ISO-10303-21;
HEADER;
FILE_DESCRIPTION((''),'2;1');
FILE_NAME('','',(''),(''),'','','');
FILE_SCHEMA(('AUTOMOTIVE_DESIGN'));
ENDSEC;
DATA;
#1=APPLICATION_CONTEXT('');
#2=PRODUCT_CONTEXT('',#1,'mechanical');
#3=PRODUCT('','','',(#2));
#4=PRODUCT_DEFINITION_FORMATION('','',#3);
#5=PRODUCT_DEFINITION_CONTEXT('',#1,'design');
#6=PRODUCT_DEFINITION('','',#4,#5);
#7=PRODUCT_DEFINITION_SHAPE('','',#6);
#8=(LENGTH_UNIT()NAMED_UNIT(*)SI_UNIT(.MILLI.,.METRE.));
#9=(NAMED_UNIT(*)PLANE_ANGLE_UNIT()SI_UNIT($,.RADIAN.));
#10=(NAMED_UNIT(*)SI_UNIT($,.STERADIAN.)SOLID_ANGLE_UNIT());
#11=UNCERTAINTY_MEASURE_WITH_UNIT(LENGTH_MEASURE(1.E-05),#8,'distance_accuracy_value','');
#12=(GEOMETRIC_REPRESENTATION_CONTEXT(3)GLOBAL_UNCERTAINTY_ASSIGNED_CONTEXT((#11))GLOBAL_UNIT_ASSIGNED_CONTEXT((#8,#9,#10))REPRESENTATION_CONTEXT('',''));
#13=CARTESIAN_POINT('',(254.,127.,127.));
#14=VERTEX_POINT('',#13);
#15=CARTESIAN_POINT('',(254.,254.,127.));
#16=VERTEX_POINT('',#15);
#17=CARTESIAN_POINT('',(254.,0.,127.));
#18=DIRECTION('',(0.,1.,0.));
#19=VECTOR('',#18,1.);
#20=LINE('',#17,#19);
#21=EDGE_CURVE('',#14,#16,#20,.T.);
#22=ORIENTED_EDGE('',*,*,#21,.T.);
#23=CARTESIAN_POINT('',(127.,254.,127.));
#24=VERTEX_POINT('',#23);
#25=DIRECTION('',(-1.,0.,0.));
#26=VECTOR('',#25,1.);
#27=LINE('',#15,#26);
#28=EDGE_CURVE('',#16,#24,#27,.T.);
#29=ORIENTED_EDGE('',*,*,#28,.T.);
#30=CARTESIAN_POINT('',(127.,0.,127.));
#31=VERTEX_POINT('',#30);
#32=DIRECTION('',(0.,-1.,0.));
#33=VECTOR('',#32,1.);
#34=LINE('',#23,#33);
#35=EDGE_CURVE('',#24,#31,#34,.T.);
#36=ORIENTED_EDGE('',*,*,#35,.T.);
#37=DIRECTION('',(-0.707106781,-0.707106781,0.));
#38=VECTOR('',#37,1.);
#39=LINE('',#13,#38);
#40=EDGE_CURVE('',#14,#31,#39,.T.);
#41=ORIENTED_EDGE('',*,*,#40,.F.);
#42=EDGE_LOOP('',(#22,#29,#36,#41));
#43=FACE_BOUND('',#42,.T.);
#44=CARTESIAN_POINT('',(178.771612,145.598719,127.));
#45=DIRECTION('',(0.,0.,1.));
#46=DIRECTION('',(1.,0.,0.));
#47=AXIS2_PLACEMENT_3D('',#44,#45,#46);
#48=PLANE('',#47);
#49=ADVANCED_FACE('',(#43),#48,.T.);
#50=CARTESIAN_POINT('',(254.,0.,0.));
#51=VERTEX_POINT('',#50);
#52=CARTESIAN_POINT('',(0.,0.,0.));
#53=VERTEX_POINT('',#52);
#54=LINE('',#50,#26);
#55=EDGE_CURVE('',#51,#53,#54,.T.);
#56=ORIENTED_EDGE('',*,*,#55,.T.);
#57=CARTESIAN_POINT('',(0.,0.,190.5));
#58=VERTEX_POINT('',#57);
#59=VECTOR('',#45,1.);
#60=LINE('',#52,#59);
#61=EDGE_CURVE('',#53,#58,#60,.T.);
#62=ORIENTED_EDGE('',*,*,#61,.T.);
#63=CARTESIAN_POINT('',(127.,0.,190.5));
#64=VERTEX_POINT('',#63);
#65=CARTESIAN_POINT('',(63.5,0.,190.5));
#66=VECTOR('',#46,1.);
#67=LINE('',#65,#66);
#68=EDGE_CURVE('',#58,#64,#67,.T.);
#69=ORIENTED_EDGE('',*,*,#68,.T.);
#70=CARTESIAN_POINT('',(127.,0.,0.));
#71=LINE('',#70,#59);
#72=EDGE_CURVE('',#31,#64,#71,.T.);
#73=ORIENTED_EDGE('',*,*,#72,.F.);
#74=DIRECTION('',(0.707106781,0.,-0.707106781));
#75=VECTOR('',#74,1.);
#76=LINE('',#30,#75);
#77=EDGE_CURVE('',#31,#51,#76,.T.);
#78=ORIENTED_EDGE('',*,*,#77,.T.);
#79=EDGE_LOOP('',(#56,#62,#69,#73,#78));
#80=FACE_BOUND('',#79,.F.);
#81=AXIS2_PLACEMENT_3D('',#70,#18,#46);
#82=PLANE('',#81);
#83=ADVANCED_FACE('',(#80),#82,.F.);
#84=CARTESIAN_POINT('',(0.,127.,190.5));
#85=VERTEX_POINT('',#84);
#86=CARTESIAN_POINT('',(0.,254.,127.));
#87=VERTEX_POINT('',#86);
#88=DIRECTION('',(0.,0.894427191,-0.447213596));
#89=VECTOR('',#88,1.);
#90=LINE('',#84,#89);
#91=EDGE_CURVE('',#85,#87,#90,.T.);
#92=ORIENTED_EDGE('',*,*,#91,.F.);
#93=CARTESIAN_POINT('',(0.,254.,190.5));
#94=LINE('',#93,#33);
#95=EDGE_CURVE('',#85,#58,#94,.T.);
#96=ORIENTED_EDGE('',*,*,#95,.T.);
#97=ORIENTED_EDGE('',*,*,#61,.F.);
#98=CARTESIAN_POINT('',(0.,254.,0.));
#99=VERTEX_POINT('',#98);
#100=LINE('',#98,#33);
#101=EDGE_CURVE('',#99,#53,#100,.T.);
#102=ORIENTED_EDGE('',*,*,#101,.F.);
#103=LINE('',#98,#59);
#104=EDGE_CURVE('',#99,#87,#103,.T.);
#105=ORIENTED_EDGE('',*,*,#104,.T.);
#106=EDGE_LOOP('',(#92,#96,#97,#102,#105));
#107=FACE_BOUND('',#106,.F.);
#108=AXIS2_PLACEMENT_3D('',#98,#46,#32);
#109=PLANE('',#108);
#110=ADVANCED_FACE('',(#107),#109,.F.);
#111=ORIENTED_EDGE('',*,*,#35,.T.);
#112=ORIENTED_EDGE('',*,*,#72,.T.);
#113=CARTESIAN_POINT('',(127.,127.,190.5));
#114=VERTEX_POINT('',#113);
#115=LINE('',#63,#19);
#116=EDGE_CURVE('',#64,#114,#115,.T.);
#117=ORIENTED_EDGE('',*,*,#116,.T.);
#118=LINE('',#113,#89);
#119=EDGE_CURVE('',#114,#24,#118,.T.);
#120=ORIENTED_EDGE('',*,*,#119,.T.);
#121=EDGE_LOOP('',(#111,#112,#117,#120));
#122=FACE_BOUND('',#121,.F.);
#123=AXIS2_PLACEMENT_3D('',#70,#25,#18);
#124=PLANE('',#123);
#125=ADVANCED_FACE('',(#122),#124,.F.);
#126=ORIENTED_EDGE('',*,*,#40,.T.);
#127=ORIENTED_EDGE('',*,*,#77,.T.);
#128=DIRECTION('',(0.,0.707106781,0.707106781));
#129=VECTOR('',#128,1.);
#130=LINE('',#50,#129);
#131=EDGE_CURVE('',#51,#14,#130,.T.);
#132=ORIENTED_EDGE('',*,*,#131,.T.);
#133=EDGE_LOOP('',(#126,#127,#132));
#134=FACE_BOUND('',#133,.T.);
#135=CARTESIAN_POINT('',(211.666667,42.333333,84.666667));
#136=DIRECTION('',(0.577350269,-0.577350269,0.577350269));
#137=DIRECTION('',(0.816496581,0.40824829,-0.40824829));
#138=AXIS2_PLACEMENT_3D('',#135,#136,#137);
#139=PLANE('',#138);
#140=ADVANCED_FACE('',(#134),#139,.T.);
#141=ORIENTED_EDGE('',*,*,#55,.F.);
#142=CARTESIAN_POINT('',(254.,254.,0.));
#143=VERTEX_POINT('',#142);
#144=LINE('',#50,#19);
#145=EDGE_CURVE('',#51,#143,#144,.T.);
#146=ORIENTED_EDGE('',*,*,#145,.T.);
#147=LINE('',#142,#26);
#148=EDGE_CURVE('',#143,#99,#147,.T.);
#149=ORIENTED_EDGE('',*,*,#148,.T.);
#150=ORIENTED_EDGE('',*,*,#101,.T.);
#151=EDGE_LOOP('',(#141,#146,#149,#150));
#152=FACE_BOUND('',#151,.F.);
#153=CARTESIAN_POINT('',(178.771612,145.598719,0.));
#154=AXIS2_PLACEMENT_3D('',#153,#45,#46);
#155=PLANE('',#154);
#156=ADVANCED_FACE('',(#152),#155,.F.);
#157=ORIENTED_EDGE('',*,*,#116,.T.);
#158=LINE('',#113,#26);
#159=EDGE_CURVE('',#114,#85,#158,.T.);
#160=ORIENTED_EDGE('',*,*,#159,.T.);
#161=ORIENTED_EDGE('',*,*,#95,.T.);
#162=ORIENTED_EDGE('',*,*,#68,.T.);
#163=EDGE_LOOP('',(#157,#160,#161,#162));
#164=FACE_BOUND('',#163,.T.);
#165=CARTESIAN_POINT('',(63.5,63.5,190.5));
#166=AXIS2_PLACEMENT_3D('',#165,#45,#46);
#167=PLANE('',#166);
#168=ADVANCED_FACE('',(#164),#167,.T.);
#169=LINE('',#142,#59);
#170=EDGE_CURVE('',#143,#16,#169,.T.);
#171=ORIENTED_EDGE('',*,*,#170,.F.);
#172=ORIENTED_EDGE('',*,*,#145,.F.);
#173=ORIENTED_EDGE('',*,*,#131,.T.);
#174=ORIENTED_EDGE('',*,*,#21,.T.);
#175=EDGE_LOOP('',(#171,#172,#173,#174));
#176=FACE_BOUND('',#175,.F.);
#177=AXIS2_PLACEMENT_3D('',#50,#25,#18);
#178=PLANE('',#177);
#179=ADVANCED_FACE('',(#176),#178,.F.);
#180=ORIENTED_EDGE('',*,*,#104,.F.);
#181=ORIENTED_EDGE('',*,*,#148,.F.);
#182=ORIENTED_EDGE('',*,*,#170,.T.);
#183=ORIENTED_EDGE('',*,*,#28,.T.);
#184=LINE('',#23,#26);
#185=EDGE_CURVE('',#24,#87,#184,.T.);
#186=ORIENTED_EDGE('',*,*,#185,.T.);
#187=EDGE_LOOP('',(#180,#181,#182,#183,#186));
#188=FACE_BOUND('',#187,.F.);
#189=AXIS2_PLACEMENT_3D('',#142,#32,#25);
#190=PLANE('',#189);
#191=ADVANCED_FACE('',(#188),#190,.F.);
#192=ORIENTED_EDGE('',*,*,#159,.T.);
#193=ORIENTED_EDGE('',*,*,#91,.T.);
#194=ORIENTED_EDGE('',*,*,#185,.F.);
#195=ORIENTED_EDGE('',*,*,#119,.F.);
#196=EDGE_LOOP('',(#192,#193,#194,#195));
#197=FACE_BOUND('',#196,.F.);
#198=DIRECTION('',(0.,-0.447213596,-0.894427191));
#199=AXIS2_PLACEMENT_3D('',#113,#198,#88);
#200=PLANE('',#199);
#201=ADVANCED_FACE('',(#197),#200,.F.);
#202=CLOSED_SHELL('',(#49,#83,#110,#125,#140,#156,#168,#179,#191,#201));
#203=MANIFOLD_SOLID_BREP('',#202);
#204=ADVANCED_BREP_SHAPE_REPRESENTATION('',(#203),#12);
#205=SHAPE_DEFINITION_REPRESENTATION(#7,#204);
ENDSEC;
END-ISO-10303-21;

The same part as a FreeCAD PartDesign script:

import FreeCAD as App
import Part
import Sketcher
Q = App.Units.Quantity


def add_polygon(sketch, points):
    """Adds a closed chain of lines whose ends are joined by coincident constraints."""
    first, n = sketch.GeometryCount, len(points)
    for a, b in zip(points, points[1:] + points[:1]):
        sketch.addGeometry(Part.LineSegment(App.Vector(*a, 0), App.Vector(*b, 0)), False)
    for i in range(n):
        sketch.addConstraint(Sketcher.Constraint("Coincident", first + i, 2, first + (i + 1) % n, 1))

doc = App.newDocument("Part")
body = doc.addObject("PartDesign::Body", "Body")

sketch1 = body.newObject("Sketcher::SketchObject", "Sketch")
sketch1.AttachmentSupport = (doc.getObject("XY_Plane"), [""])
sketch1.MapMode = "FlatFace"
add_polygon(sketch1, [(0, 0), (127, 0), (127, 254), (0, 254)])
sketch1.addConstraint(Sketcher.Constraint("Horizontal", 0))
sketch1.addConstraint(Sketcher.Constraint("Vertical", 1))
sketch1.addConstraint(Sketcher.Constraint("Horizontal", 2))
sketch1.addConstraint(Sketcher.Constraint("Vertical", 3))
sketch1.addConstraint(Sketcher.Constraint("Coincident", 3, 2, -1, 1))
sketch1.addConstraint(Sketcher.Constraint("DistanceX", 0, 1, 0, 2, Q("5 in")))
sketch1.addConstraint(Sketcher.Constraint("DistanceY", 1, 1, 1, 2, Q("10 in")))
pad1 = body.newObject("PartDesign::Pad", "Pad")
pad1.Profile = sketch1
pad1.Length = Q("7.5 in")

sketch2 = body.newObject("Sketcher::SketchObject", "Sketch001")
sketch2.AttachmentSupport = (doc.getObject("XY_Plane"), [""])
sketch2.MapMode = "FlatFace"
add_polygon(sketch2, [(254, 254), (127, 254), (127, 0), (254, 0)])
sketch2.addConstraint(Sketcher.Constraint("Horizontal", 0))
sketch2.addConstraint(Sketcher.Constraint("Vertical", 1))
sketch2.addConstraint(Sketcher.Constraint("Horizontal", 2))
sketch2.addConstraint(Sketcher.Constraint("Vertical", 3))
sketch2.addConstraint(Sketcher.Constraint("PointOnObject", 1, 2, -1))
sketch2.addConstraint(Sketcher.Constraint("DistanceX", 0, 2, 0, 1, Q("5 in")))
sketch2.addConstraint(Sketcher.Constraint("DistanceY", 1, 2, 1, 1, Q("10 in")))
sketch2.addConstraint(Sketcher.Constraint("DistanceX", -1, 1, 0, 2, Q("5 in")))
pad2 = body.newObject("PartDesign::Pad", "Pad001")
pad2.Profile = sketch2
pad2.Length = Q("5 in")

sketch3 = body.newObject("Sketcher::SketchObject", "Sketch002")
sketch3.AttachmentSupport = (doc.getObject("YZ_Plane"), [""])
sketch3.MapMode = "FlatFace"
sketch3.AttachmentOffset = App.Placement(App.Vector(0, 0, 5 * 25.4), App.Rotation())
add_polygon(sketch3, [(254, 190.5), (127, 190.5), (254, 127)])
sketch3.addConstraint(Sketcher.Constraint("Horizontal", 0))
sketch3.addConstraint(Sketcher.Constraint("Vertical", 2))
sketch3.addConstraint(Sketcher.Constraint("DistanceX", 0, 2, 0, 1, Q("5 in")))
sketch3.addConstraint(Sketcher.Constraint("DistanceY", 2, 1, 2, 2, Q("2.5 in")))
sketch3.addConstraint(Sketcher.Constraint("DistanceX", -1, 1, 0, 2, Q("5 in")))
sketch3.addConstraint(Sketcher.Constraint("DistanceY", -1, 1, 1, 2, Q("5 in")))
pocket1 = body.newObject("PartDesign::Pocket", "Pocket")
pocket1.Profile = sketch3
pocket1.Length = Q("5 in")

sketch4 = body.newObject("Sketcher::SketchObject", "Sketch003")
sketch4.Placement = App.Placement(App.Vector(84.666667, -84.666667, 84.666667), App.Rotation(App.Vector(0.816496581, 0.40824829, -0.40824829), App.Vector(0, 0.707106781, 0.707106781), App.Vector(0.577350269, -0.577350269, 0.577350269), "ZXY"))
add_polygon(sketch4, [(207.390131, 0), (207.390131, 179.605122), (51.847533, 89.802561)])
sketch4.addConstraint(Sketcher.Constraint("Vertical", 0))
sketch4.addConstraint(Sketcher.Constraint("PointOnObject", 2, 2, -1))
sketch4.addConstraint(Sketcher.Constraint("Equal", 1, 2))
sketch4.addConstraint(Sketcher.Constraint("Angle", 1, Q("-150 deg")))
sketch4.addConstraint(Sketcher.Constraint("DistanceX", 1, 2, 0, 2, Q("155.542599 mm")))
sketch4.addConstraint(Sketcher.Constraint("DistanceX", -1, 1, 0, 2, Q("207.390131 mm")))
pocket2 = body.newObject("PartDesign::Pocket", "Pocket001")
pocket2.Profile = sketch4
pocket2.Length = Q("3 in")
pocket2.Reversed = True

doc.recompute()
